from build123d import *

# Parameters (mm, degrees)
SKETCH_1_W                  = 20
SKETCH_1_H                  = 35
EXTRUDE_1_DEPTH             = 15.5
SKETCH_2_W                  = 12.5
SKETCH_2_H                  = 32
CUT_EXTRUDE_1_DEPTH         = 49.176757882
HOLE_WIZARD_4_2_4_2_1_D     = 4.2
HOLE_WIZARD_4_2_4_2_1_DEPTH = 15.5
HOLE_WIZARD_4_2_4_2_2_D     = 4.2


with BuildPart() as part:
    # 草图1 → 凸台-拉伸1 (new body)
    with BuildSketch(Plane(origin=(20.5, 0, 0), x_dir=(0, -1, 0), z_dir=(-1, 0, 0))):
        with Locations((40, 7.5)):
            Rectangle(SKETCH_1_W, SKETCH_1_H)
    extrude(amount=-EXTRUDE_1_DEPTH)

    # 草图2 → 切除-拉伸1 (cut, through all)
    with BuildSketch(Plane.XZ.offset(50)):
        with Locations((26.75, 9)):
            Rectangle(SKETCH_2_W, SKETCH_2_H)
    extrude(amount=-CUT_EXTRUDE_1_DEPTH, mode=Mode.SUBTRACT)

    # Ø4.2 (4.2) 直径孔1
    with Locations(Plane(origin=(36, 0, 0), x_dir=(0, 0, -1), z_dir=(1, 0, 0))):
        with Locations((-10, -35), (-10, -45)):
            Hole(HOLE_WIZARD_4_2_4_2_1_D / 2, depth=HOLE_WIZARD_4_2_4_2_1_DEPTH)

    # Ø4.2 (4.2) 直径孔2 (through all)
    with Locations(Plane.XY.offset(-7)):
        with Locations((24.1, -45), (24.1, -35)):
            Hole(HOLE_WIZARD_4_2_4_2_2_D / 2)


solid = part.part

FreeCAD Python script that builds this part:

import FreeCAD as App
import Part
import Sketcher
from FreeCAD import Vector
Q = App.Units.Quantity

doc = App.newDocument("Part")
body = doc.addObject("PartDesign::Body", "Body")

# Sketch on YZ plane
sketch1 = body.newObject("Sketcher::SketchObject", "Sketch")
sketch1.AttachmentSupport = (doc.getObject("YZ_Plane"), [""])
sketch1.MapMode = "FlatFace"
sketch1.AttachmentOffset = App.Placement(Vector(0, 0, 20.5), App.Rotation())
sketch1.addGeometry(Part.LineSegment(Vector(-30, 25, 0), Vector(-30, -10, 0)), False)
sketch1.addGeometry(Part.LineSegment(Vector(-30, -10, 0), Vector(-50, -10, 0)), False)
sketch1.addGeometry(Part.LineSegment(Vector(-50, -10, 0), Vector(-50, 25, 0)), False)
sketch1.addGeometry(Part.LineSegment(Vector(-50, 25, 0), Vector(-30, 25, 0)), False)
sketch1.addConstraint(Sketcher.Constraint("Coincident", 0, 2, 1, 1))
sketch1.addConstraint(Sketcher.Constraint("Coincident", 1, 2, 2, 1))
sketch1.addConstraint(Sketcher.Constraint("Coincident", 2, 2, 3, 1))
sketch1.addConstraint(Sketcher.Constraint("Coincident", 3, 2, 0, 1))
sketch1.addConstraint(Sketcher.Constraint("Vertical", 0))
sketch1.addConstraint(Sketcher.Constraint("Horizontal", 1))
sketch1.addConstraint(Sketcher.Constraint("Vertical", 2))
sketch1.addConstraint(Sketcher.Constraint("Horizontal", 3))
sketch1.addConstraint(Sketcher.Constraint("DistanceX", 1, 2, 1, 1, Q("20 mm")))
sketch1.addConstraint(Sketcher.Constraint("DistanceY", 0, 2, 0, 1, Q("35 mm")))
sketch1.addConstraint(Sketcher.Constraint("DistanceX", 0, 2, -1, 1, Q("30 mm")))
sketch1.addConstraint(Sketcher.Constraint("DistanceY", 0, 2, -1, 1, Q("10 mm")))
pad1 = body.newObject("PartDesign::Pad", "Pad")
pad1.Profile = sketch1
pad1.Length = 15.5

# Sketch on XZ plane
sketch2 = body.newObject("Sketcher::SketchObject", "Sketch001")
sketch2.AttachmentSupport = (doc.getObject("XZ_Plane"), [""])
sketch2.MapMode = "FlatFace"
sketch2.AttachmentOffset = App.Placement(Vector(0, 0, 50), App.Rotation())
sketch2.addGeometry(Part.LineSegment(Vector(20.5, 25, 0), Vector(20.5, -7, 0)), False)
sketch2.addGeometry(Part.LineSegment(Vector(20.5, -7, 0), Vector(33, -7, 0)), False)
sketch2.addGeometry(Part.LineSegment(Vector(33, -7, 0), Vector(33, 25, 0)), False)
sketch2.addGeometry(Part.LineSegment(Vector(33, 25, 0), Vector(20.5, 25, 0)), False)
sketch2.addConstraint(Sketcher.Constraint("Coincident", 0, 2, 1, 1))
sketch2.addConstraint(Sketcher.Constraint("Coincident", 1, 2, 2, 1))
sketch2.addConstraint(Sketcher.Constraint("Coincident", 2, 2, 3, 1))
sketch2.addConstraint(Sketcher.Constraint("Coincident", 3, 2, 0, 1))
sketch2.addConstraint(Sketcher.Constraint("Vertical", 0))
sketch2.addConstraint(Sketcher.Constraint("Horizontal", 1))
sketch2.addConstraint(Sketcher.Constraint("Vertical", 2))
sketch2.addConstraint(Sketcher.Constraint("Horizontal", 3))
sketch2.addConstraint(Sketcher.Constraint("DistanceY", 0, 2, 0, 1, Q("32 mm")))
sketch2.addConstraint(Sketcher.Constraint("DistanceX", 1, 1, 1, 2, Q("12.5 mm")))
sketch2.addConstraint(Sketcher.Constraint("DistanceY", 0, 2, -1, 1, Q("7 mm")))
sketch2.addConstraint(Sketcher.Constraint("DistanceX", -1, 1, 1, 2, Q("33 mm")))
pocket1 = body.newObject("PartDesign::Pocket", "Pocket")
pocket1.Profile = sketch2
pocket1.Type = "ThroughAll"

# Sketch on YZ plane
sketch3 = body.newObject("Sketcher::SketchObject", "Sketch002")
sketch3.AttachmentSupport = (doc.getObject("YZ_Plane"), [""])
sketch3.MapMode = "FlatFace"
sketch3.AttachmentOffset = App.Placement(Vector(0, 0, 36), App.Rotation())
sketch3.addGeometry(Part.Circle(Vector(-35, 10, 0), Vector(0, 0, 1), 2.1), False)
sketch3.addGeometry(Part.Circle(Vector(-45, 10, 0), Vector(0, 0, 1), 2.1), False)
sketch3.addConstraint(Sketcher.Constraint("Equal", 0, 1))
sketch3.addConstraint(Sketcher.Constraint("Horizontal", 0, 3, 1, 3))
sketch3.addConstraint(Sketcher.Constraint("Diameter", 0, Q("4.2 mm")))
sketch3.addConstraint(Sketcher.Constraint("DistanceX", 0, 3, -1, 1, Q("35 mm")))
sketch3.addConstraint(Sketcher.Constraint("DistanceY", -1, 1, 0, 3, Q("10 mm")))
sketch3.addConstraint(Sketcher.Constraint("DistanceX", 1, 3, -1, 1, Q("45 mm")))
doc.recompute()
hole = body.newObject("PartDesign::Hole", "Hole")
hole.Profile = sketch3
hole.ThreadType = "None"
hole.Diameter = 4.2
hole.DepthType = "Dimension"
hole.Depth = 15.5
hole.DrillPoint = "Flat"

# Sketch on XY plane
sketch4 = body.newObject("Sketcher::SketchObject", "Sketch003")
sketch4.AttachmentSupport = (doc.getObject("XY_Plane"), [""])
sketch4.MapMode = "FlatFace"
sketch4.AttachmentOffset = App.Placement(Vector(0, 0, -7), App.Rotation())
sketch4.addGeometry(Part.Circle(Vector(24.1, -45, 0), Vector(0, 0, 1), 2.1), False)
sketch4.addGeometry(Part.Circle(Vector(24.1, -35, 0), Vector(0, 0, 1), 2.1), False)
sketch4.addConstraint(Sketcher.Constraint("Equal", 0, 1))
sketch4.addConstraint(Sketcher.Constraint("Vertical", 0, 3, 1, 3))
sketch4.addConstraint(Sketcher.Constraint("Diameter", 0, Q("4.2 mm")))
sketch4.addConstraint(Sketcher.Constraint("DistanceY", 0, 3, -1, 1, Q("45 mm")))
sketch4.addConstraint(Sketcher.Constraint("DistanceY", 1, 3, -1, 1, Q("35 mm")))
sketch4.addConstraint(Sketcher.Constraint("DistanceX", -1, 1, 0, 3, Q("24.1 mm")))
doc.recompute()
hole2 = body.newObject("PartDesign::Hole", "Hole001")
hole2.Profile = sketch4
hole2.ThreadType = "None"
hole2.Diameter = 4.2
hole2.DepthType = "ThroughAll"

doc.recompute()
